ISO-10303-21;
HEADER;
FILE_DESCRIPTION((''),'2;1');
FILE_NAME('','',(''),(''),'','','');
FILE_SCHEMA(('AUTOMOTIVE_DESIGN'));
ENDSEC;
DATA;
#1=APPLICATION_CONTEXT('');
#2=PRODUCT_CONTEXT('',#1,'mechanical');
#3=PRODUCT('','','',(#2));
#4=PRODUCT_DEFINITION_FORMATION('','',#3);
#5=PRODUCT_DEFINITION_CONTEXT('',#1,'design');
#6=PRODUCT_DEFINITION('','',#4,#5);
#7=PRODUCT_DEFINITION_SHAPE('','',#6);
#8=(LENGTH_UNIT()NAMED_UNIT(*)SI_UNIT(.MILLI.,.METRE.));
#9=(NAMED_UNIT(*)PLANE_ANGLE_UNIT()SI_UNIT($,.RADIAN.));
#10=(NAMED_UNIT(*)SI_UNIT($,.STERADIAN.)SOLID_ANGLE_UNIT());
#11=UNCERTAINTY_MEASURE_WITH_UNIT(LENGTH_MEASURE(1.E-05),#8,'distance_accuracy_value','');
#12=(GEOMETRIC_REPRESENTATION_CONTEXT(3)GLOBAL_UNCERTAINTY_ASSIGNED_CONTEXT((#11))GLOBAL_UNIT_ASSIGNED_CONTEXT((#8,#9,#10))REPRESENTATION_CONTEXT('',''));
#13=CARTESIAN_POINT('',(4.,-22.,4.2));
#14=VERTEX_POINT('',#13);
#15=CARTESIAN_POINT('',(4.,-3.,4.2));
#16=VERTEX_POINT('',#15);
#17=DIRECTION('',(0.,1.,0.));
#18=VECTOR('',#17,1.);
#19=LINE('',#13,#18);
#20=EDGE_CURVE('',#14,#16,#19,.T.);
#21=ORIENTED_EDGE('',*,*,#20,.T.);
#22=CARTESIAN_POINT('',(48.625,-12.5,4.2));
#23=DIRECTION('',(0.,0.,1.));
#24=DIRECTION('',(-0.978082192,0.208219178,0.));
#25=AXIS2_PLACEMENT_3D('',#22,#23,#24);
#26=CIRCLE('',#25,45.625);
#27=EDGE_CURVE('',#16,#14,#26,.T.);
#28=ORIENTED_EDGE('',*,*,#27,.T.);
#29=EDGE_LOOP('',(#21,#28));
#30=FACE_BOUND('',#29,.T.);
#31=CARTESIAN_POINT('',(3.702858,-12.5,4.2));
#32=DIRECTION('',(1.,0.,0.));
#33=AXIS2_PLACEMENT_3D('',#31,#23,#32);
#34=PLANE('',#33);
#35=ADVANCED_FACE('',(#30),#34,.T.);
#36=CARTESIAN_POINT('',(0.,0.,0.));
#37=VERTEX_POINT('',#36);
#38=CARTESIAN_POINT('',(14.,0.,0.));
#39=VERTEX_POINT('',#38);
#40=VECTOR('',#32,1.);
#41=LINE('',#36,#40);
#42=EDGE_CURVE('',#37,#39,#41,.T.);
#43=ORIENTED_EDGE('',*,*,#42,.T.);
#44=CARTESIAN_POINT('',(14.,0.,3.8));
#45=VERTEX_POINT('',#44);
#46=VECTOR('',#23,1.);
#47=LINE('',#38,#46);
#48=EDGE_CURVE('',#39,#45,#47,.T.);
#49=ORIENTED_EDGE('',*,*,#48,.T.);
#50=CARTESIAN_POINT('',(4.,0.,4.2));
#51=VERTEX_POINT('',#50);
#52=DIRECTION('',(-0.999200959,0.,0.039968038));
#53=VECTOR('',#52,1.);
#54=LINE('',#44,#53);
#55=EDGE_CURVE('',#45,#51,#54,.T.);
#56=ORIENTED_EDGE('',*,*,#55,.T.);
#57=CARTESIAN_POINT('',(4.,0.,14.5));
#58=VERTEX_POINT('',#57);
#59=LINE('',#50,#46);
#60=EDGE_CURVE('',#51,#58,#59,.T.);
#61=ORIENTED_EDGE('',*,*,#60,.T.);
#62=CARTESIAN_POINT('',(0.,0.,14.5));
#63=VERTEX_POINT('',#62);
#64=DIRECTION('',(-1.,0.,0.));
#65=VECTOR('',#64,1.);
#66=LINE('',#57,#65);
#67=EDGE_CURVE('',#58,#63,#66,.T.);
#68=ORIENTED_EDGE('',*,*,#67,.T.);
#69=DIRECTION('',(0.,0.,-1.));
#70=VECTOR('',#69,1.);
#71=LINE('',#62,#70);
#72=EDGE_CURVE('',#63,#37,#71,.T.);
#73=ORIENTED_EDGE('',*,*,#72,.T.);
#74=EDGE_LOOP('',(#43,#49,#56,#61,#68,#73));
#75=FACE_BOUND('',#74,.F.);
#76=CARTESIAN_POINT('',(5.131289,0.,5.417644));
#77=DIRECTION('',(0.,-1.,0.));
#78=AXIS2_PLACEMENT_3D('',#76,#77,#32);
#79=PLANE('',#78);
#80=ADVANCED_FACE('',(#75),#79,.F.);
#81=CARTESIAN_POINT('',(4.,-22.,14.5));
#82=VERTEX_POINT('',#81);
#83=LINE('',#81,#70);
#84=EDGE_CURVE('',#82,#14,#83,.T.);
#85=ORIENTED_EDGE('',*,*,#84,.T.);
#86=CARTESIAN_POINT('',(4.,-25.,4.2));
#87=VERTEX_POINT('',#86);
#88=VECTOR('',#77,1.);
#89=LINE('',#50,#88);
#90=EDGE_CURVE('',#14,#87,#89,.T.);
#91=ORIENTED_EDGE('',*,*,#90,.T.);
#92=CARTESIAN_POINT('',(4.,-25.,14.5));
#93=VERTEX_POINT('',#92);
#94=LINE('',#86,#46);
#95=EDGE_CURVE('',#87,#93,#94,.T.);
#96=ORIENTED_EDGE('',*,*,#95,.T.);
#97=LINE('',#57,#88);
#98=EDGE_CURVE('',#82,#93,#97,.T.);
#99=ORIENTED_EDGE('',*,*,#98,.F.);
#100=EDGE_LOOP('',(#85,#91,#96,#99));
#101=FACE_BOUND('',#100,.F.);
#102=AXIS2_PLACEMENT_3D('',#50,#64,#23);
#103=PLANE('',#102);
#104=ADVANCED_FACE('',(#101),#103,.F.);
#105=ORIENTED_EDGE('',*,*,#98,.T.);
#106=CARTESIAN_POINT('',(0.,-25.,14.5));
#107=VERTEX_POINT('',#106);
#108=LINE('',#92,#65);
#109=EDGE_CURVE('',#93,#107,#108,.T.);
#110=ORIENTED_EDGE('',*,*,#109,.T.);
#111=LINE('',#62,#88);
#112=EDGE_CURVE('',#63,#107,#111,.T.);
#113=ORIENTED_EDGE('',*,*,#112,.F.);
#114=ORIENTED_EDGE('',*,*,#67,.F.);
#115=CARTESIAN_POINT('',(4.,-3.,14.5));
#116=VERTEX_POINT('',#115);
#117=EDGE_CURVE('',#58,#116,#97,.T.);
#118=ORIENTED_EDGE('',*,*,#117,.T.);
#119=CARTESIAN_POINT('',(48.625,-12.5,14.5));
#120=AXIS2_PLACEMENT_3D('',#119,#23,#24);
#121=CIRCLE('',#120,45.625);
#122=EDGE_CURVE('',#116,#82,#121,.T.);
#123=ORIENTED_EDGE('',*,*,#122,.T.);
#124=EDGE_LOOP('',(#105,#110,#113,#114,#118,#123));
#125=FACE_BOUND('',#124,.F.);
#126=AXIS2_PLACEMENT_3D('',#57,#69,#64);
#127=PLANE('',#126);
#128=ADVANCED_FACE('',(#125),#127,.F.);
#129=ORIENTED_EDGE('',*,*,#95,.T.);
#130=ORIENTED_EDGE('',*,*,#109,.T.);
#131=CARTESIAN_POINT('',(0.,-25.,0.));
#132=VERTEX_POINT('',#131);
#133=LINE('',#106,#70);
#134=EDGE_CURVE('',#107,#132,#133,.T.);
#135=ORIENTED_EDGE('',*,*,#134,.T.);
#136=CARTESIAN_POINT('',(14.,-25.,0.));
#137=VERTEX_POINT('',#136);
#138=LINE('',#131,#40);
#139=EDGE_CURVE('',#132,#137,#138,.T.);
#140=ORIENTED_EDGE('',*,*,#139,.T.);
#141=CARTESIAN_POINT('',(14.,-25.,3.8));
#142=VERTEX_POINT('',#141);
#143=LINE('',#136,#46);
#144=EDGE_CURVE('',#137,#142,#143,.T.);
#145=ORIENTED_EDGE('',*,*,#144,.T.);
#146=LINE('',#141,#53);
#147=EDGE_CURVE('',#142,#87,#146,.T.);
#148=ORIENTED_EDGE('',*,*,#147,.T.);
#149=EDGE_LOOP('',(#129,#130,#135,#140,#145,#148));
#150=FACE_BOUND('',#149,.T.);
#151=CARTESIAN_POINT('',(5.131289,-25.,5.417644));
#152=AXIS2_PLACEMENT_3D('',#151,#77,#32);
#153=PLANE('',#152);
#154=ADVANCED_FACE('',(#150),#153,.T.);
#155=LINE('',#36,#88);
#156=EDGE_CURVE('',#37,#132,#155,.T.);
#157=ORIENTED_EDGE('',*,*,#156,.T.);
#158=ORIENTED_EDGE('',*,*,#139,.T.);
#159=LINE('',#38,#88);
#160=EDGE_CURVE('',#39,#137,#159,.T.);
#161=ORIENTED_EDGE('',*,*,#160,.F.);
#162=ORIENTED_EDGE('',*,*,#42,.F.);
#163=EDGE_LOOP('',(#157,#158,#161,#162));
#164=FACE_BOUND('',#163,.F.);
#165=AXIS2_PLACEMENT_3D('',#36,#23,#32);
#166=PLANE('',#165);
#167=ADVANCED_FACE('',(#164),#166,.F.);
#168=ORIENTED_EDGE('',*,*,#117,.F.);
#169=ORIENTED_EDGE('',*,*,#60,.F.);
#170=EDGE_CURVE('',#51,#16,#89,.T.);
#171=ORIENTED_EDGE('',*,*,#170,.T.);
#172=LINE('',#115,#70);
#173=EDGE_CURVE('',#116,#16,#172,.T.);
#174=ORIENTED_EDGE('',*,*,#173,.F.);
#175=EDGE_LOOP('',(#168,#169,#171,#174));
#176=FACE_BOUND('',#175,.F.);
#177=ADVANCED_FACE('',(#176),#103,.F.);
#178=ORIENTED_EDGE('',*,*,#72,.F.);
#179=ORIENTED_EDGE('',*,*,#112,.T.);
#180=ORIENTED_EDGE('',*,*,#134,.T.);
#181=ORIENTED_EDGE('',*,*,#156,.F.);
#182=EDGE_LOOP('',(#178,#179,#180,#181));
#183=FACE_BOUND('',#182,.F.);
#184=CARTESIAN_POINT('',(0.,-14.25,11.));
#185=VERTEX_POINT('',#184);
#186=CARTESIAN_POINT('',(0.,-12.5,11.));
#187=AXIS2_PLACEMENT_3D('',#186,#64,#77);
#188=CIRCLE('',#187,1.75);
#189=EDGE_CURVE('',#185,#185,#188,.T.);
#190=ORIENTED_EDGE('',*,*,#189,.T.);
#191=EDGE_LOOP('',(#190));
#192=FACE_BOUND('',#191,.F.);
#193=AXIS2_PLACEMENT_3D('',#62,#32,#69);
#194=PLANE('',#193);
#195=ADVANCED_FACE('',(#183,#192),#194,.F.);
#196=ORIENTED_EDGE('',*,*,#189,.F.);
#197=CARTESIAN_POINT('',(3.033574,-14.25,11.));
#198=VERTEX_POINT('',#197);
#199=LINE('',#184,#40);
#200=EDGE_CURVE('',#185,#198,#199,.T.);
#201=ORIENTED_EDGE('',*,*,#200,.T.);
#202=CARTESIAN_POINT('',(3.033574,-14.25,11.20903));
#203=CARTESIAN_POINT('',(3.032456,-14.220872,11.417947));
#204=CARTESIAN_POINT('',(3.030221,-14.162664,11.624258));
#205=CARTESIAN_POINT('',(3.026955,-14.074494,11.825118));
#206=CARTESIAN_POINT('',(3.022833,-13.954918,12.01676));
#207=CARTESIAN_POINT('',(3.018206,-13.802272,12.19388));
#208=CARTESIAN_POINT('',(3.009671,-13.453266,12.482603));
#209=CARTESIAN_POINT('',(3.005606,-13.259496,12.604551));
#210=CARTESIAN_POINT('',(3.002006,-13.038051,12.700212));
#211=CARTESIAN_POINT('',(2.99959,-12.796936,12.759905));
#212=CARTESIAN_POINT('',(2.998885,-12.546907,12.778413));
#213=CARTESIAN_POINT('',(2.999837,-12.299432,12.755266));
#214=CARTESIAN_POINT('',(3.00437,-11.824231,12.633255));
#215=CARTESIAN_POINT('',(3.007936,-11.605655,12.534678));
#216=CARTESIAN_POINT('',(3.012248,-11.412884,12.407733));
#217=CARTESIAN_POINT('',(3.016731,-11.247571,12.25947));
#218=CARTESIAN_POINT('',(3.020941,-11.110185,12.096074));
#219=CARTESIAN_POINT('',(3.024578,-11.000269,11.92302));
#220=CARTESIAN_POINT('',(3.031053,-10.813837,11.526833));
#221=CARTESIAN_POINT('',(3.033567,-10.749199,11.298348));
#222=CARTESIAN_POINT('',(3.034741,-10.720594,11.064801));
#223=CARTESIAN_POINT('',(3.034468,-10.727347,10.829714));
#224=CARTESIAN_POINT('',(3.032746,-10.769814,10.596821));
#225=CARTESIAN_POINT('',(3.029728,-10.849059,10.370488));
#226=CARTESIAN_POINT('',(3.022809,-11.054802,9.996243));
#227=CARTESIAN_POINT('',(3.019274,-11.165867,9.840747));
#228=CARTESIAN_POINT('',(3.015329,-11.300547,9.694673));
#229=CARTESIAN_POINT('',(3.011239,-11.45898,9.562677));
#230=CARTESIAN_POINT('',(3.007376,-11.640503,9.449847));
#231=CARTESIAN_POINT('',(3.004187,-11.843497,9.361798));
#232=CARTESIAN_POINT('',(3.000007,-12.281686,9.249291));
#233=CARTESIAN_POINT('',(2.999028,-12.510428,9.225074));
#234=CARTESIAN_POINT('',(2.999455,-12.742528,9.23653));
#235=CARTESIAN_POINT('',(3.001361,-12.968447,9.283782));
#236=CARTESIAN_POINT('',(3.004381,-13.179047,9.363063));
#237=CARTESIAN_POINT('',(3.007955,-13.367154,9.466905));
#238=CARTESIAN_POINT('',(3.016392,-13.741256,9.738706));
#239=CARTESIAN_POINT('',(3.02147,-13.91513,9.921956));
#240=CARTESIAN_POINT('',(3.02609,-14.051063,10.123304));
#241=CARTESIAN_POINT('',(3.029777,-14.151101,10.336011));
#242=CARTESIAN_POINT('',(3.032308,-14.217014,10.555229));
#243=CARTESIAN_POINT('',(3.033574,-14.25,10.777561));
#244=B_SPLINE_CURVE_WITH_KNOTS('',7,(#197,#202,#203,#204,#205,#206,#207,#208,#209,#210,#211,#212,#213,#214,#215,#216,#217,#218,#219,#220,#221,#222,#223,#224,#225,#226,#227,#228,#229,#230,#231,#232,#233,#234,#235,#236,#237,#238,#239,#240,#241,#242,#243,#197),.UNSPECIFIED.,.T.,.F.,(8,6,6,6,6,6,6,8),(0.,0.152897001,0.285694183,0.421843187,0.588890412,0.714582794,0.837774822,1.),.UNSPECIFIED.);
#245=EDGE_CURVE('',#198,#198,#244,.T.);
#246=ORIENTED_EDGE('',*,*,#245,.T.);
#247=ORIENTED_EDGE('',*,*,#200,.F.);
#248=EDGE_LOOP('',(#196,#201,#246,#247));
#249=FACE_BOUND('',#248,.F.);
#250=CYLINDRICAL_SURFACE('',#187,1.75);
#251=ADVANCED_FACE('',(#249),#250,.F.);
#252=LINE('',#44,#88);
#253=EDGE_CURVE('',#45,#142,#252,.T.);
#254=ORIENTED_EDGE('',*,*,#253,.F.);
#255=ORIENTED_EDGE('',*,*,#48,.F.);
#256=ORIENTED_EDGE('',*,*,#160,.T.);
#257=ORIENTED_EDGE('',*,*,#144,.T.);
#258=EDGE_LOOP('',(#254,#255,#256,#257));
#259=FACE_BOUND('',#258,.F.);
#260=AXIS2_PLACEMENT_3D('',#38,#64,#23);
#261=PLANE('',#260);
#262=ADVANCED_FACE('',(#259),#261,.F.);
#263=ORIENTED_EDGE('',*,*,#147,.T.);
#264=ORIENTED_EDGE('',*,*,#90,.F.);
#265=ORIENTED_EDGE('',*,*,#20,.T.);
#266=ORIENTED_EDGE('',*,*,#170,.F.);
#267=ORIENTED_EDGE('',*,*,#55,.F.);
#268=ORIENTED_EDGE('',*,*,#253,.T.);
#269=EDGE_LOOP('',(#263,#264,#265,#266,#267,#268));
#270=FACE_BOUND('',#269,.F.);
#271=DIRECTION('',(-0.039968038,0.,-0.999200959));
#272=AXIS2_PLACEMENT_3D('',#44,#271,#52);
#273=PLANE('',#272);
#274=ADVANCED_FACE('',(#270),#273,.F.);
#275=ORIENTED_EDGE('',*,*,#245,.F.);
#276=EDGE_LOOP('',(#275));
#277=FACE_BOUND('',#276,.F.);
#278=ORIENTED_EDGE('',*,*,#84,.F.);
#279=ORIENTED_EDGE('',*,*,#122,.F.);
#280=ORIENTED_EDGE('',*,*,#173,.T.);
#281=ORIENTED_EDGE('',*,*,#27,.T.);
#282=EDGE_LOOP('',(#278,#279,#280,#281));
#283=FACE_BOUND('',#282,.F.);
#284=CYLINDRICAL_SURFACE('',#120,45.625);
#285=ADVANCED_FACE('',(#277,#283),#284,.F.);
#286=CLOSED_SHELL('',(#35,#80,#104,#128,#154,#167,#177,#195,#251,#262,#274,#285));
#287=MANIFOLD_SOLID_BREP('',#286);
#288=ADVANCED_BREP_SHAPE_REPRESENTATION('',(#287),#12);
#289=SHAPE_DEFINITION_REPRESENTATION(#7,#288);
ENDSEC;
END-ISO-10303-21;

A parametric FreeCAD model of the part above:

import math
import FreeCAD as App
import Part
import Sketcher

doc = App.newDocument("Part")
body = doc.addObject("PartDesign::Body", "Body")

sketch1 = body.newObject("Sketcher::SketchObject", "Sketch")
sketch1.AttachmentSupport = (doc.getObject("XZ_Plane"), [""])
sketch1.MapMode = "FlatFace"
sketch1.addGeometry([
    Part.LineSegment(App.Vector(0, 14.5, 0), App.Vector(0, 0, 0)),
    Part.LineSegment(App.Vector(0, 0, 0), App.Vector(14, 0, 0)),
    Part.LineSegment(App.Vector(14, 0, 0), App.Vector(14, 3.8, 0)),
    Part.LineSegment(App.Vector(14, 3.8, 0), App.Vector(4, 4.2, 0)),
    Part.LineSegment(App.Vector(4, 4.2, 0), App.Vector(4, 14.5, 0)),
    Part.LineSegment(App.Vector(4, 14.5, 0), App.Vector(0, 14.5, 0)),
], False)
sketch1.addConstraint([
    Sketcher.Constraint("Coincident", 0, 2, 1, 1),
    Sketcher.Constraint("Coincident", 1, 2, 2, 1),
    Sketcher.Constraint("Coincident", 2, 2, 3, 1),
    Sketcher.Constraint("Coincident", 3, 2, 4, 1),
    Sketcher.Constraint("Coincident", 4, 2, 5, 1),
    Sketcher.Constraint("Coincident", 5, 2, 0, 1),
    Sketcher.Constraint("Vertical", 0),
    Sketcher.Constraint("Horizontal", 1),
    Sketcher.Constraint("Vertical", 2),
    Sketcher.Constraint("Vertical", 4),
    Sketcher.Constraint("Horizontal", 5),
    Sketcher.Constraint("Coincident", 0, 2, -1, 1),
    Sketcher.Constraint("DistanceX", 1, 1, 1, 2, 14.0),
    Sketcher.Constraint("DistanceX", 5, 2, 5, 1, 4.0),
    Sketcher.Constraint("DistanceY", 0, 2, 0, 1, 14.5),
    Sketcher.Constraint("DistanceY", 2, 1, 2, 2, 3.8),
    Sketcher.Constraint("DistanceY", 4, 1, 4, 2, 10.3),
])
pad1 = body.newObject("PartDesign::Pad", "Pad")
pad1.Profile = sketch1
pad1.Length = 25

sketch2 = body.newObject("Sketcher::SketchObject", "Sketch001")
sketch2.AttachmentSupport = (doc.getObject("YZ_Plane"), [""])
sketch2.MapMode = "FlatFace"
sketch2.addGeometry(Part.Circle(App.Vector(-12.5, 11, 0), App.Vector(0, 0, 1), 1.75), False)
sketch2.addConstraint([
    Sketcher.Constraint("Diameter", 0, 3.5),
    Sketcher.Constraint("DistanceY", -1, 1, 0, 3, 11.0),
    Sketcher.Constraint("DistanceX", 0, 3, -1, 1, 12.5),
])
pocket1 = body.newObject("PartDesign::Pocket", "Pocket")
pocket1.Profile = sketch2
pocket1.Type = "ThroughAll"
pocket1.Reversed = True

sketch3 = body.newObject("Sketcher::SketchObject", "Sketch002")
sketch3.AttachmentSupport = (doc.getObject("XY_Plane"), [""])
sketch3.MapMode = "FlatFace"
sketch3.AttachmentOffset = App.Placement(App.Vector(0, 0, 14.5), App.Rotation())
sketch3.addGeometry([
    Part.LineSegment(App.Vector(4, -22, 0), App.Vector(4, -3, 0)),
    Part.ArcOfCircle(Part.Circle(App.Vector(48.625, -12.5, 0), App.Vector(0, 0, 1), 45.625), math.radians(167.981988), math.radians(192.018012)),
], False)
sketch3.addConstraint([
    Sketcher.Constraint("Coincident", 0, 1, 1, 2),
    Sketcher.Constraint("Coincident", 1, 1, 0, 2),
    Sketcher.Constraint("Vertical", 0),
    Sketcher.Constraint("DistanceY", 0, 1, 0, 2, 19.0),
    Sketcher.Constraint("DistanceX", -1, 1, 0, 1, 4.0),
    Sketcher.Constraint("DistanceY", 0, 1, -1, 1, 22.0),
    Sketcher.Constraint("Radius", 1, 45.625),
])
pocket2 = body.newObject("PartDesign::Pocket", "Pocket001")
pocket2.Profile = sketch3
pocket2.Length = 10.3

doc.recompute()
